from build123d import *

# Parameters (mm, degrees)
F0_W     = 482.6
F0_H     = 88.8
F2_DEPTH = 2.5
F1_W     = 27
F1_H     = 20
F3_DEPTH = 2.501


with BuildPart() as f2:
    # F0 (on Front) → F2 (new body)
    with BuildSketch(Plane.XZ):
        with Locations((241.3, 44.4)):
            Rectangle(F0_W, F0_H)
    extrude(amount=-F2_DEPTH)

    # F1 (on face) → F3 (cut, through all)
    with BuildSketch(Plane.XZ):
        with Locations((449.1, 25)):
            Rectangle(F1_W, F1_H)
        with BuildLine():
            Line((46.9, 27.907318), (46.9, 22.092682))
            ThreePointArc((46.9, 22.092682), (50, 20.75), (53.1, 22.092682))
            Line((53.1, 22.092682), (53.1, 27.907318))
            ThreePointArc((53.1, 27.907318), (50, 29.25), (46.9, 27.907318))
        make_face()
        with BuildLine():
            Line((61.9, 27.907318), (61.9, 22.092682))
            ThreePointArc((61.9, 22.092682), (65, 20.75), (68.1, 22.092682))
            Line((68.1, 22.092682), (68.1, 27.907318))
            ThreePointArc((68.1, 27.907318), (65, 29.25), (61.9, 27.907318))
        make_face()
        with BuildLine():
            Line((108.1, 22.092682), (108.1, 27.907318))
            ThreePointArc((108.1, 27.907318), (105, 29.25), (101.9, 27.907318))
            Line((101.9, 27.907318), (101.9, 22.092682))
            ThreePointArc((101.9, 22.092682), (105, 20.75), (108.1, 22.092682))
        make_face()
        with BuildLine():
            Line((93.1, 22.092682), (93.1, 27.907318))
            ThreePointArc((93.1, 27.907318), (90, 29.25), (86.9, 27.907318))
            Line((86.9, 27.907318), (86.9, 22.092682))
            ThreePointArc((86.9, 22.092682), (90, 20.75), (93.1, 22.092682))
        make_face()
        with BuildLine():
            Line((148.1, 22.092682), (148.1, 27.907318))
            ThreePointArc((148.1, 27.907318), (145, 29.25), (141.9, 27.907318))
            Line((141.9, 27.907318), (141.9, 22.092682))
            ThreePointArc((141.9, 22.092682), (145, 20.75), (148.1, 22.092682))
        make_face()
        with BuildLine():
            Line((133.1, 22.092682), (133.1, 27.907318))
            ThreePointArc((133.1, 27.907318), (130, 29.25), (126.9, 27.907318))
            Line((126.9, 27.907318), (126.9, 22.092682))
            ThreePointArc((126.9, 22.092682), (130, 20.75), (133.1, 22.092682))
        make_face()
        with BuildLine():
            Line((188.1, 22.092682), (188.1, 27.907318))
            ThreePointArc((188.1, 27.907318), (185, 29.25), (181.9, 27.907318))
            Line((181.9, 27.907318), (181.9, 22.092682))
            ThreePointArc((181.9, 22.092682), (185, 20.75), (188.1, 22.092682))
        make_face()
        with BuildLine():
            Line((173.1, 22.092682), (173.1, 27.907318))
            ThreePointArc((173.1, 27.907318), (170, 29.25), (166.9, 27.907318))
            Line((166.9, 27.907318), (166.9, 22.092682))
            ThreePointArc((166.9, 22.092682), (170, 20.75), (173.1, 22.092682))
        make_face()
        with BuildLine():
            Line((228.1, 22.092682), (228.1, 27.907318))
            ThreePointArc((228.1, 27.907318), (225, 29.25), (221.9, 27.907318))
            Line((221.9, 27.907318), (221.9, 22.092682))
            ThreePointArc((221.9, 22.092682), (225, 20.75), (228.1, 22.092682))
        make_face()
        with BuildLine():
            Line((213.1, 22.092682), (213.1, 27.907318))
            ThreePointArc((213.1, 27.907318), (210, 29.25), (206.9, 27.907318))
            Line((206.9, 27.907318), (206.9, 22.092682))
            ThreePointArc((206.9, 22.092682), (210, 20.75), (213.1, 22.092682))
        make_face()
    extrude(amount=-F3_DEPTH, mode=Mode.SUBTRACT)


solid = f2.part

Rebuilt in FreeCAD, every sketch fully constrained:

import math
import FreeCAD as App
import Part
import Sketcher
from FreeCAD import Vector

doc = App.newDocument("Part")
params = doc.addObject("Spreadsheet::Sheet", "Params")
for row, (alias, value) in enumerate([
    ("sketch1_width", "482.6 mm"),
    ("sketch1_height", "88.8 mm"),
    ("pad1_length", "2.5 mm"),
    ("sketch2_width", "27 mm"),
    ("sketch2_height", "20 mm"),
    ("sketch2_radius", "4.249999 mm"),
], start=1):
    params.set(f"A{row}", alias)
    params.set(f"B{row}", "=" + value)
    params.setAlias(f"B{row}", alias)

body = doc.addObject("PartDesign::Body", "Body")

# Sketch on XZ plane
sketch1 = doc.addObject("Sketcher::SketchObject", "Sketch")
body.addObject(sketch1)
sketch1.AttachmentSupport = (doc.XZ_Plane, [""])
sketch1.MapMode = "FlatFace"
sketch1.addGeometry([
    Part.LineSegment(Vector(0, 89, 0), Vector(0, 0, 0)),
    Part.LineSegment(Vector(0, 0, 0), Vector(483, 0, 0)),
    Part.LineSegment(Vector(483, 0, 0), Vector(483, 89, 0)),
    Part.LineSegment(Vector(483, 89, 0), Vector(0, 89, 0)),
], False)
sketch1.addConstraint([
    Sketcher.Constraint("Coincident", 0, 2, 1, 1),
    Sketcher.Constraint("Coincident", 1, 2, 2, 1),
    Sketcher.Constraint("Coincident", 2, 2, 3, 1),
    Sketcher.Constraint("Coincident", 3, 2, 0, 1),
    Sketcher.Constraint("Vertical", 0),
    Sketcher.Constraint("Horizontal", 1),
    Sketcher.Constraint("Vertical", 2),
    Sketcher.Constraint("Horizontal", 3),
    Sketcher.Constraint("Coincident", 0, 2, -1, 1),
    Sketcher.Constraint("DistanceX", 1, 1, 1, 2, 482.6),
    Sketcher.Constraint("DistanceY", 0, 2, 0, 1, 88.8),
])
sketch1.setExpression("Constraints[9]", "Params.sketch1_width")
sketch1.setExpression("Constraints[10]", "Params.sketch1_height")
pad1 = doc.addObject("PartDesign::Pad", "Pad")
body.addObject(pad1)
pad1.Profile = sketch1
pad1.setExpression("Length", "Params.pad1_length")
pad1.Reversed = True

# Sketch on XZ plane
sketch2 = doc.addObject("Sketcher::SketchObject", "Sketch001")
body.addObject(sketch2)
sketch2.AttachmentSupport = (doc.XZ_Plane, [""])
sketch2.MapMode = "FlatFace"
sketch2.addGeometry([
    Part.LineSegment(Vector(435.6, 35, 0), Vector(435.6, 15, 0)),  # 0
    Part.LineSegment(Vector(435.6, 15, 0), Vector(462.6, 15, 0)),  # 1
    Part.LineSegment(Vector(462.6, 15, 0), Vector(462.6, 35, 0)),  # 2
    Part.LineSegment(Vector(462.6, 35, 0), Vector(435.6, 35, 0)),  # 3
    Part.LineSegment(Vector(46.9, 27.9, 0), Vector(46.9, 22.1, 0)),  # 4
    Part.ArcOfCircle(Part.Circle(Vector(50, 25, 0), Vector(0, 0, 1), 4.2), math.radians(-137), math.radians(-43)),  # 5
    Part.LineSegment(Vector(53.1, 22.1, 0), Vector(53.1, 27.9, 0)),  # 6
    Part.ArcOfCircle(Part.Circle(Vector(50, 25, 0), Vector(0, 0, 1), 4.2), math.radians(43), math.radians(137)),  # 7
    Part.LineSegment(Vector(61.9, 27.9, 0), Vector(61.9, 22.1, 0)),  # 8
    Part.ArcOfCircle(Part.Circle(Vector(65, 25, 0), Vector(0, 0, 1), 4.2), math.radians(-137), math.radians(-43)),  # 9
    Part.LineSegment(Vector(68.1, 22.1, 0), Vector(68.1, 27.9, 0)),  # 10
    Part.ArcOfCircle(Part.Circle(Vector(65, 25, 0), Vector(0, 0, 1), 4.2), math.radians(43), math.radians(137)),  # 11
    Part.LineSegment(Vector(108.1, 22.1, 0), Vector(108.1, 27.9, 0)),  # 12
    Part.ArcOfCircle(Part.Circle(Vector(105, 25, 0), Vector(0, 0, 1), 4.2), math.radians(43), math.radians(137)),  # 13
    Part.LineSegment(Vector(101.9, 27.9, 0), Vector(101.9, 22.1, 0)),  # 14
    Part.ArcOfCircle(Part.Circle(Vector(105, 25, 0), Vector(0, 0, 1), 4.2), math.radians(-137), math.radians(-43)),  # 15
    Part.LineSegment(Vector(93.1, 22.1, 0), Vector(93.1, 27.9, 0)),  # 16
    Part.ArcOfCircle(Part.Circle(Vector(90, 25, 0), Vector(0, 0, 1), 4.2), math.radians(43), math.radians(137)),  # 17
    Part.LineSegment(Vector(86.9, 27.9, 0), Vector(86.9, 22.1, 0)),  # 18
    Part.ArcOfCircle(Part.Circle(Vector(90, 25, 0), Vector(0, 0, 1), 4.2), math.radians(-137), math.radians(-43)),  # 19
    Part.LineSegment(Vector(148.1, 22.1, 0), Vector(148.1, 27.9, 0)),  # 20
    Part.ArcOfCircle(Part.Circle(Vector(145, 25, 0), Vector(0, 0, 1), 4.2), math.radians(43), math.radians(137)),  # 21
    Part.LineSegment(Vector(141.9, 27.9, 0), Vector(141.9, 22.1, 0)),  # 22
    Part.ArcOfCircle(Part.Circle(Vector(145, 25, 0), Vector(0, 0, 1), 4.2), math.radians(-137), math.radians(-43)),  # 23
    Part.LineSegment(Vector(133.1, 22.1, 0), Vector(133.1, 27.9, 0)),  # 24
    Part.ArcOfCircle(Part.Circle(Vector(130, 25, 0), Vector(0, 0, 1), 4.2), math.radians(43), math.radians(137)),  # 25
    Part.LineSegment(Vector(126.9, 27.9, 0), Vector(126.9, 22.1, 0)),  # 26
    Part.ArcOfCircle(Part.Circle(Vector(130, 25, 0), Vector(0, 0, 1), 4.2), math.radians(-137), math.radians(-43)),  # 27
    Part.LineSegment(Vector(188.1, 22.1, 0), Vector(188.1, 27.9, 0)),  # 28
    Part.ArcOfCircle(Part.Circle(Vector(185, 25, 0), Vector(0, 0, 1), 4.2), math.radians(43), math.radians(137)),  # 29
    Part.LineSegment(Vector(181.9, 27.9, 0), Vector(181.9, 22.1, 0)),  # 30
    Part.ArcOfCircle(Part.Circle(Vector(185, 25, 0), Vector(0, 0, 1), 4.2), math.radians(-137), math.radians(-43)),  # 31
    Part.LineSegment(Vector(173.1, 22.1, 0), Vector(173.1, 27.9, 0)),  # 32
    Part.ArcOfCircle(Part.Circle(Vector(170, 25, 0), Vector(0, 0, 1), 4.2), math.radians(43), math.radians(137)),  # 33
    Part.LineSegment(Vector(166.9, 27.9, 0), Vector(166.9, 22.1, 0)),  # 34
    Part.ArcOfCircle(Part.Circle(Vector(170, 25, 0), Vector(0, 0, 1), 4.2), math.radians(-137), math.radians(-43)),  # 35
    Part.LineSegment(Vector(228.1, 22.1, 0), Vector(228.1, 27.9, 0)),  # 36
    Part.ArcOfCircle(Part.Circle(Vector(225, 25, 0), Vector(0, 0, 1), 4.2), math.radians(43), math.radians(137)),  # 37
    Part.LineSegment(Vector(221.9, 27.9, 0), Vector(221.9, 22.1, 0)),  # 38
    Part.ArcOfCircle(Part.Circle(Vector(225, 25, 0), Vector(0, 0, 1), 4.2), math.radians(-137), math.radians(-43)),  # 39
    Part.LineSegment(Vector(213.1, 22.1, 0), Vector(213.1, 27.9, 0)),  # 40
    Part.ArcOfCircle(Part.Circle(Vector(210, 25, 0), Vector(0, 0, 1), 4.2), math.radians(43), math.radians(137)),  # 41
    Part.LineSegment(Vector(206.9, 27.9, 0), Vector(206.9, 22.1, 0)),  # 42
    Part.ArcOfCircle(Part.Circle(Vector(210, 25, 0), Vector(0, 0, 1), 4.2), math.radians(-137), math.radians(-43)),  # 43
], False)
sketch2.addConstraint([
    Sketcher.Constraint("Coincident", 0, 2, 1, 1),
    Sketcher.Constraint("Coincident", 1, 2, 2, 1),
    Sketcher.Constraint("Coincident", 2, 2, 3, 1),
    Sketcher.Constraint("Coincident", 3, 2, 0, 1),
    Sketcher.Constraint("Coincident", 4, 2, 5, 1),
    Sketcher.Constraint("Coincident", 5, 2, 6, 1),
    Sketcher.Constraint("Coincident", 6, 2, 7, 1),
    Sketcher.Constraint("Coincident", 7, 2, 4, 1),
    Sketcher.Constraint("Coincident", 8, 2, 9, 1),
    Sketcher.Constraint("Coincident", 9, 2, 10, 1),
    Sketcher.Constraint("Coincident", 10, 2, 11, 1),
    Sketcher.Constraint("Coincident", 11, 2, 8, 1),
    Sketcher.Constraint("Coincident", 12, 2, 13, 1),
    Sketcher.Constraint("Coincident", 13, 2, 14, 1),
    Sketcher.Constraint("Coincident", 14, 2, 15, 1),
    Sketcher.Constraint("Coincident", 15, 2, 12, 1),
    Sketcher.Constraint("Coincident", 16, 2, 17, 1),
    Sketcher.Constraint("Coincident", 17, 2, 18, 1),
    Sketcher.Constraint("Coincident", 18, 2, 19, 1),
    Sketcher.Constraint("Coincident", 19, 2, 16, 1),
    Sketcher.Constraint("Coincident", 20, 2, 21, 1),
    Sketcher.Constraint("Coincident", 21, 2, 22, 1),
    Sketcher.Constraint("Coincident", 22, 2, 23, 1),
    Sketcher.Constraint("Coincident", 23, 2, 20, 1),
    Sketcher.Constraint("Coincident", 24, 2, 25, 1),
    Sketcher.Constraint("Coincident", 25, 2, 26, 1),
    Sketcher.Constraint("Coincident", 26, 2, 27, 1),
    Sketcher.Constraint("Coincident", 27, 2, 24, 1),
    Sketcher.Constraint("Coincident", 28, 2, 29, 1),
    Sketcher.Constraint("Coincident", 29, 2, 30, 1),
    Sketcher.Constraint("Coincident", 30, 2, 31, 1),
    Sketcher.Constraint("Coincident", 31, 2, 28, 1),
    Sketcher.Constraint("Coincident", 32, 2, 33, 1),
    Sketcher.Constraint("Coincident", 33, 2, 34, 1),
    Sketcher.Constraint("Coincident", 34, 2, 35, 1),
    Sketcher.Constraint("Coincident", 35, 2, 32, 1),
    Sketcher.Constraint("Coincident", 36, 2, 37, 1),
    Sketcher.Constraint("Coincident", 37, 2, 38, 1),
    Sketcher.Constraint("Coincident", 38, 2, 39, 1),
    Sketcher.Constraint("Coincident", 39, 2, 36, 1),
    Sketcher.Constraint("Coincident", 40, 2, 41, 1),
    Sketcher.Constraint("Coincident", 41, 2, 42, 1),
    Sketcher.Constraint("Coincident", 42, 2, 43, 1),
    Sketcher.Constraint("Coincident", 43, 2, 40, 1),
    Sketcher.Constraint("Vertical", 0),
    Sketcher.Constraint("Horizontal", 1),
    Sketcher.Constraint("Vertical", 2),
    Sketcher.Constraint("Horizontal", 3),
    Sketcher.Constraint("Vertical", 4),
    Sketcher.Constraint("Vertical", 6),
    Sketcher.Constraint("Vertical", 8),
    Sketcher.Constraint("Vertical", 10),
    Sketcher.Constraint("Vertical", 12),
    Sketcher.Constraint("Vertical", 14),
    Sketcher.Constraint("Vertical", 16),
    Sketcher.Constraint("Vertical", 18),
    Sketcher.Constraint("Vertical", 20),
    Sketcher.Constraint("Vertical", 22),
    Sketcher.Constraint("Vertical", 24),
    Sketcher.Constraint("Vertical", 26),
    Sketcher.Constraint("Vertical", 28),
    Sketcher.Constraint("Vertical", 30),
    Sketcher.Constraint("Vertical", 32),
    Sketcher.Constraint("Vertical", 34),
    Sketcher.Constraint("Vertical", 36),
    Sketcher.Constraint("Vertical", 38),
    Sketcher.Constraint("Vertical", 40),
    Sketcher.Constraint("Vertical", 42),
    Sketcher.Constraint("Coincident", 7, 3, 5, 3),
    Sketcher.Constraint("Coincident", 11, 3, 9, 3),
    Sketcher.Constraint("Coincident", 15, 3, 13, 3),
    Sketcher.Constraint("Coincident", 19, 3, 17, 3),
    Sketcher.Constraint("Coincident", 23, 3, 21, 3),
    Sketcher.Constraint("Coincident", 27, 3, 25, 3),
    Sketcher.Constraint("Coincident", 31, 3, 29, 3),
    Sketcher.Constraint("Coincident", 35, 3, 33, 3),
    Sketcher.Constraint("Coincident", 39, 3, 37, 3),
    Sketcher.Constraint("Coincident", 43, 3, 41, 3),
    Sketcher.Constraint("Equal", 5, 7),
    Sketcher.Constraint("Equal", 7, 9),
    Sketcher.Constraint("Equal", 9, 11),
    Sketcher.Constraint("Equal", 11, 13),
    Sketcher.Constraint("Equal", 13, 15),
    Sketcher.Constraint("Equal", 15, 17),
    Sketcher.Constraint("Equal", 17, 19),
    Sketcher.Constraint("Equal", 19, 21),
    Sketcher.Constraint("Equal", 21, 23),
    Sketcher.Constraint("Equal", 23, 25),
    Sketcher.Constraint("Equal", 25, 27),
    Sketcher.Constraint("Equal", 27, 29),
    Sketcher.Constraint("Equal", 29, 31),
    Sketcher.Constraint("Equal", 31, 33),
    Sketcher.Constraint("Equal", 33, 35),
    Sketcher.Constraint("Equal", 35, 37),
    Sketcher.Constraint("Equal", 37, 39),
    Sketcher.Constraint("Equal", 39, 41),
    Sketcher.Constraint("Equal", 41, 43),
    Sketcher.Constraint("Horizontal", 7, 3, 9, 3),
    Sketcher.Constraint("Horizontal", 11, 3, 13, 3),
    Sketcher.Constraint("Horizontal", 15, 3, 17, 3),
    Sketcher.Constraint("Horizontal", 19, 3, 21, 3),
    Sketcher.Constraint("Horizontal", 23, 3, 25, 3),
    Sketcher.Constraint("Horizontal", 27, 3, 29, 3),
    Sketcher.Constraint("Horizontal", 31, 3, 33, 3),
    Sketcher.Constraint("Horizontal", 35, 3, 37, 3),
    Sketcher.Constraint("Horizontal", 39, 3, 41, 3),
    Sketcher.Constraint("Horizontal", 4, 2, 5, 2),
    Sketcher.Constraint("Horizontal", 5, 2, 8, 2),
    Sketcher.Constraint("Horizontal", 8, 2, 9, 2),
    Sketcher.Constraint("Horizontal", 11, 2, 12, 2),
    Sketcher.Constraint("Horizontal", 12, 2, 13, 2),
    Sketcher.Constraint("Horizontal", 13, 2, 16, 2),
    Sketcher.Constraint("Horizontal", 16, 2, 17, 2),
    Sketcher.Constraint("Horizontal", 17, 2, 20, 2),
    Sketcher.Constraint("Horizontal", 20, 2, 21, 2),
    Sketcher.Constraint("Horizontal", 21, 2, 24, 2),
    Sketcher.Constraint("Horizontal", 24, 2, 25, 2),
    Sketcher.Constraint("Horizontal", 25, 2, 28, 2),
    Sketcher.Constraint("Horizontal", 28, 2, 29, 2),
    Sketcher.Constraint("Horizontal", 29, 2, 32, 2),
    Sketcher.Constraint("Horizontal", 32, 2, 33, 2),
    Sketcher.Constraint("Horizontal", 33, 2, 36, 2),
    Sketcher.Constraint("Horizontal", 36, 2, 37, 2),
    Sketcher.Constraint("Horizontal", 37, 2, 40, 2),
    Sketcher.Constraint("Horizontal", 40, 2, 41, 2),
    Sketcher.Constraint("DistanceX", 1, 1, 1, 2, 27.0),
    Sketcher.Constraint("DistanceY", 0, 2, 0, 1, 20.0),
    Sketcher.Constraint("Radius", 5, 4.249999),
    Sketcher.Constraint("DistanceX", -1, 1, 5, 3, 50.0),
    Sketcher.Constraint("DistanceY", -1, 1, 5, 3, 24.999999),
    Sketcher.Constraint("DistanceX", -1, 1, 9, 3, 65.0),
    Sketcher.Constraint("DistanceX", -1, 1, 13, 3, 105.0),
    Sketcher.Constraint("DistanceX", -1, 1, 17, 3, 90.0),
    Sketcher.Constraint("DistanceX", -1, 1, 21, 3, 145.0),
    Sketcher.Constraint("DistanceX", -1, 1, 25, 3, 130.0),
    Sketcher.Constraint("DistanceX", -1, 1, 29, 3, 185.0),
    Sketcher.Constraint("DistanceX", -1, 1, 33, 3, 170.0),
    Sketcher.Constraint("DistanceX", -1, 1, 37, 3, 225.0),
    Sketcher.Constraint("DistanceX", -1, 1, 41, 3, 210.0),
    Sketcher.Constraint("DistanceY", -1, 1, 0, 2, 15.0),
    Sketcher.Constraint("DistanceX", -1, 1, 0, 2, 435.6),
    Sketcher.Constraint("DistanceX", -1, 1, 4, 2, 46.9),
])
sketch2.setExpression("Constraints[125]", "Params.sketch2_width")
sketch2.setExpression("Constraints[126]", "Params.sketch2_height")
sketch2.setExpression("Constraints[127]", "Params.sketch2_radius")
pocket1 = doc.addObject("PartDesign::Pocket", "Pocket")
body.addObject(pocket1)
pocket1.Profile = sketch2
pocket1.Type = "ThroughAll"

doc.recompute()
